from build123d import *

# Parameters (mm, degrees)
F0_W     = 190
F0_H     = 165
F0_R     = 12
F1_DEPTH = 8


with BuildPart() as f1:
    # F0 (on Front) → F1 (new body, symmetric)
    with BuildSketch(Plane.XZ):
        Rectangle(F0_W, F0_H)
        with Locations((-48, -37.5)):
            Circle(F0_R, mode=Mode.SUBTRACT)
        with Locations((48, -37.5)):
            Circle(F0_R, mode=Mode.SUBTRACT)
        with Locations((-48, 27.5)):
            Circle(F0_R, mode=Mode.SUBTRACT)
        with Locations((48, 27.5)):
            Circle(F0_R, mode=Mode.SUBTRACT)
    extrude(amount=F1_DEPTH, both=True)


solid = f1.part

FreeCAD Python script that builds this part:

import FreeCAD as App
import Part
import Sketcher
from FreeCAD import Vector


def add_polygon(sketch, points):
    """Adds a closed chain of lines whose ends are joined by coincident constraints."""
    first, n = sketch.GeometryCount, len(points)
    for a, b in zip(points, points[1:] + points[:1]):
        sketch.addGeometry(Part.LineSegment(App.Vector(*a, 0), App.Vector(*b, 0)), False)
    for i in range(n):
        sketch.addConstraint(Sketcher.Constraint("Coincident", first + i, 2, first + (i + 1) % n, 1))

doc = App.newDocument("Part")
params = doc.addObject("Spreadsheet::Sheet", "Params")
for row, (alias, value) in enumerate([
    ("sketch1_diameter", "24 mm"),
    ("sketch1_width", "190 mm"),
    ("sketch1_height", "165 mm"),
    ("pad1_length", "16 mm"),
], start=1):
    params.set(f"A{row}", alias)
    params.set(f"B{row}", "=" + value)
    params.setAlias(f"B{row}", alias)

body = doc.addObject("PartDesign::Body", "Body")

sketch1 = body.newObject("Sketcher::SketchObject", "Sketch")
sketch1.AttachmentSupport = (doc.getObject("XZ_Plane"), [""])
sketch1.MapMode = "FlatFace"
add_polygon(sketch1, [(-95, 82), (-95, -82), (95, -82), (95, 82)])
sketch1.addGeometry(Part.Circle(Vector(-48, -38, 0), Vector(0, 0, 1), 12), False)
sketch1.addGeometry(Part.Circle(Vector(48, -38, 0), Vector(0, 0, 1), 12), False)
sketch1.addGeometry(Part.Circle(Vector(-48, 28, 0), Vector(0, 0, 1), 12), False)
sketch1.addGeometry(Part.Circle(Vector(48, 28, 0), Vector(0, 0, 1), 12), False)
sketch1.addConstraint(Sketcher.Constraint("Vertical", 0))
sketch1.addConstraint(Sketcher.Constraint("Horizontal", 1))
sketch1.addConstraint(Sketcher.Constraint("Vertical", 2))
sketch1.addConstraint(Sketcher.Constraint("Horizontal", 3))
sketch1.addConstraint(Sketcher.Constraint("Equal", 4, 5))
sketch1.addConstraint(Sketcher.Constraint("Equal", 5, 6))
sketch1.addConstraint(Sketcher.Constraint("Equal", 6, 7))
sketch1.addConstraint(Sketcher.Constraint("Symmetric", 0, 2, 2, 2, -1, 1))
sketch1.addConstraint(Sketcher.Constraint("Symmetric", 4, 3, 5, 3, -2))
sketch1.addConstraint(Sketcher.Constraint("Symmetric", 6, 3, 7, 3, -2))
sketch1.addConstraint(Sketcher.Constraint("Vertical", 4, 3, 6, 3))
sketch1.addConstraint(Sketcher.Constraint("Diameter", 4, 24.0))
sketch1.addConstraint(Sketcher.Constraint("DistanceX", 1, 1, 1, 2, 190.0))
sketch1.addConstraint(Sketcher.Constraint("DistanceY", 0, 2, 0, 1, 165.0))
sketch1.addConstraint(Sketcher.Constraint("DistanceX", 4, 3, -1, 1, 48.0))
sketch1.addConstraint(Sketcher.Constraint("DistanceY", 4, 3, 6, 3, 65.0))
sketch1.addConstraint(Sketcher.Constraint("DistanceY", 0, 2, 4, 3, 45.0))
sketch1.setExpression("Constraints[15]", "Params.sketch1_diameter")
sketch1.setExpression("Constraints[16]", "Params.sketch1_width")
sketch1.setExpression("Constraints[17]", "Params.sketch1_height")
pad1 = body.newObject("PartDesign::Pad", "Pad")
pad1.Profile = sketch1
pad1.setExpression("Length", "Params.pad1_length")
pad1.Midplane = True

doc.recompute()
